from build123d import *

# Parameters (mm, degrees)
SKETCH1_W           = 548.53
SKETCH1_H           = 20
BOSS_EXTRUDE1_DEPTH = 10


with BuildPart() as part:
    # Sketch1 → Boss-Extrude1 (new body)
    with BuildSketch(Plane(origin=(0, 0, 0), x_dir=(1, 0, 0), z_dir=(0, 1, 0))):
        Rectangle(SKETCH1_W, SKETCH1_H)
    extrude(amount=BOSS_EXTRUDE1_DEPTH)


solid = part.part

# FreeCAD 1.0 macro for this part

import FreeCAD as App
import Part
import Sketcher
from FreeCAD import Vector


def add_polygon(sketch, points):
    """Adds a closed chain of lines whose ends are joined by coincident constraints."""
    first, n = sketch.GeometryCount, len(points)
    for a, b in zip(points, points[1:] + points[:1]):
        sketch.addGeometry(Part.LineSegment(App.Vector(*a, 0), App.Vector(*b, 0)), False)
    for i in range(n):
        sketch.addConstraint(Sketcher.Constraint("Coincident", first + i, 2, first + (i + 1) % n, 1))

doc = App.newDocument("Part")
body = doc.addObject("PartDesign::Body", "Body")

# Sketch on XZ plane
sketch1 = body.newObject("Sketcher::SketchObject", "Sketch")
sketch1.AttachmentSupport = (doc.getObject("XZ_Plane"), [""])
sketch1.MapMode = "FlatFace"
add_polygon(sketch1, [(-274.265, -10), (-274.265, 10), (274.265, 10), (274.265, -10)])  # lines 0-3
sketch1.addConstraint(Sketcher.Constraint("Vertical", 0))
sketch1.addConstraint(Sketcher.Constraint("Horizontal", 1))
sketch1.addConstraint(Sketcher.Constraint("Vertical", 2))
sketch1.addConstraint(Sketcher.Constraint("Horizontal", 3))
sketch1.addConstraint(Sketcher.Constraint("Symmetric", 0, 2, 2, 2, -1, 1))
sketch1.addConstraint(Sketcher.Constraint("DistanceY", 0, 1, 0, 2, 20.0))
sketch1.addConstraint(Sketcher.Constraint("DistanceX", 1, 1, 1, 2, 548.53))
pad1 = body.newObject("PartDesign::Pad", "Pad")
pad1.Profile = sketch1
pad1.Length = 10
pad1.Reversed = True

doc.recompute()
